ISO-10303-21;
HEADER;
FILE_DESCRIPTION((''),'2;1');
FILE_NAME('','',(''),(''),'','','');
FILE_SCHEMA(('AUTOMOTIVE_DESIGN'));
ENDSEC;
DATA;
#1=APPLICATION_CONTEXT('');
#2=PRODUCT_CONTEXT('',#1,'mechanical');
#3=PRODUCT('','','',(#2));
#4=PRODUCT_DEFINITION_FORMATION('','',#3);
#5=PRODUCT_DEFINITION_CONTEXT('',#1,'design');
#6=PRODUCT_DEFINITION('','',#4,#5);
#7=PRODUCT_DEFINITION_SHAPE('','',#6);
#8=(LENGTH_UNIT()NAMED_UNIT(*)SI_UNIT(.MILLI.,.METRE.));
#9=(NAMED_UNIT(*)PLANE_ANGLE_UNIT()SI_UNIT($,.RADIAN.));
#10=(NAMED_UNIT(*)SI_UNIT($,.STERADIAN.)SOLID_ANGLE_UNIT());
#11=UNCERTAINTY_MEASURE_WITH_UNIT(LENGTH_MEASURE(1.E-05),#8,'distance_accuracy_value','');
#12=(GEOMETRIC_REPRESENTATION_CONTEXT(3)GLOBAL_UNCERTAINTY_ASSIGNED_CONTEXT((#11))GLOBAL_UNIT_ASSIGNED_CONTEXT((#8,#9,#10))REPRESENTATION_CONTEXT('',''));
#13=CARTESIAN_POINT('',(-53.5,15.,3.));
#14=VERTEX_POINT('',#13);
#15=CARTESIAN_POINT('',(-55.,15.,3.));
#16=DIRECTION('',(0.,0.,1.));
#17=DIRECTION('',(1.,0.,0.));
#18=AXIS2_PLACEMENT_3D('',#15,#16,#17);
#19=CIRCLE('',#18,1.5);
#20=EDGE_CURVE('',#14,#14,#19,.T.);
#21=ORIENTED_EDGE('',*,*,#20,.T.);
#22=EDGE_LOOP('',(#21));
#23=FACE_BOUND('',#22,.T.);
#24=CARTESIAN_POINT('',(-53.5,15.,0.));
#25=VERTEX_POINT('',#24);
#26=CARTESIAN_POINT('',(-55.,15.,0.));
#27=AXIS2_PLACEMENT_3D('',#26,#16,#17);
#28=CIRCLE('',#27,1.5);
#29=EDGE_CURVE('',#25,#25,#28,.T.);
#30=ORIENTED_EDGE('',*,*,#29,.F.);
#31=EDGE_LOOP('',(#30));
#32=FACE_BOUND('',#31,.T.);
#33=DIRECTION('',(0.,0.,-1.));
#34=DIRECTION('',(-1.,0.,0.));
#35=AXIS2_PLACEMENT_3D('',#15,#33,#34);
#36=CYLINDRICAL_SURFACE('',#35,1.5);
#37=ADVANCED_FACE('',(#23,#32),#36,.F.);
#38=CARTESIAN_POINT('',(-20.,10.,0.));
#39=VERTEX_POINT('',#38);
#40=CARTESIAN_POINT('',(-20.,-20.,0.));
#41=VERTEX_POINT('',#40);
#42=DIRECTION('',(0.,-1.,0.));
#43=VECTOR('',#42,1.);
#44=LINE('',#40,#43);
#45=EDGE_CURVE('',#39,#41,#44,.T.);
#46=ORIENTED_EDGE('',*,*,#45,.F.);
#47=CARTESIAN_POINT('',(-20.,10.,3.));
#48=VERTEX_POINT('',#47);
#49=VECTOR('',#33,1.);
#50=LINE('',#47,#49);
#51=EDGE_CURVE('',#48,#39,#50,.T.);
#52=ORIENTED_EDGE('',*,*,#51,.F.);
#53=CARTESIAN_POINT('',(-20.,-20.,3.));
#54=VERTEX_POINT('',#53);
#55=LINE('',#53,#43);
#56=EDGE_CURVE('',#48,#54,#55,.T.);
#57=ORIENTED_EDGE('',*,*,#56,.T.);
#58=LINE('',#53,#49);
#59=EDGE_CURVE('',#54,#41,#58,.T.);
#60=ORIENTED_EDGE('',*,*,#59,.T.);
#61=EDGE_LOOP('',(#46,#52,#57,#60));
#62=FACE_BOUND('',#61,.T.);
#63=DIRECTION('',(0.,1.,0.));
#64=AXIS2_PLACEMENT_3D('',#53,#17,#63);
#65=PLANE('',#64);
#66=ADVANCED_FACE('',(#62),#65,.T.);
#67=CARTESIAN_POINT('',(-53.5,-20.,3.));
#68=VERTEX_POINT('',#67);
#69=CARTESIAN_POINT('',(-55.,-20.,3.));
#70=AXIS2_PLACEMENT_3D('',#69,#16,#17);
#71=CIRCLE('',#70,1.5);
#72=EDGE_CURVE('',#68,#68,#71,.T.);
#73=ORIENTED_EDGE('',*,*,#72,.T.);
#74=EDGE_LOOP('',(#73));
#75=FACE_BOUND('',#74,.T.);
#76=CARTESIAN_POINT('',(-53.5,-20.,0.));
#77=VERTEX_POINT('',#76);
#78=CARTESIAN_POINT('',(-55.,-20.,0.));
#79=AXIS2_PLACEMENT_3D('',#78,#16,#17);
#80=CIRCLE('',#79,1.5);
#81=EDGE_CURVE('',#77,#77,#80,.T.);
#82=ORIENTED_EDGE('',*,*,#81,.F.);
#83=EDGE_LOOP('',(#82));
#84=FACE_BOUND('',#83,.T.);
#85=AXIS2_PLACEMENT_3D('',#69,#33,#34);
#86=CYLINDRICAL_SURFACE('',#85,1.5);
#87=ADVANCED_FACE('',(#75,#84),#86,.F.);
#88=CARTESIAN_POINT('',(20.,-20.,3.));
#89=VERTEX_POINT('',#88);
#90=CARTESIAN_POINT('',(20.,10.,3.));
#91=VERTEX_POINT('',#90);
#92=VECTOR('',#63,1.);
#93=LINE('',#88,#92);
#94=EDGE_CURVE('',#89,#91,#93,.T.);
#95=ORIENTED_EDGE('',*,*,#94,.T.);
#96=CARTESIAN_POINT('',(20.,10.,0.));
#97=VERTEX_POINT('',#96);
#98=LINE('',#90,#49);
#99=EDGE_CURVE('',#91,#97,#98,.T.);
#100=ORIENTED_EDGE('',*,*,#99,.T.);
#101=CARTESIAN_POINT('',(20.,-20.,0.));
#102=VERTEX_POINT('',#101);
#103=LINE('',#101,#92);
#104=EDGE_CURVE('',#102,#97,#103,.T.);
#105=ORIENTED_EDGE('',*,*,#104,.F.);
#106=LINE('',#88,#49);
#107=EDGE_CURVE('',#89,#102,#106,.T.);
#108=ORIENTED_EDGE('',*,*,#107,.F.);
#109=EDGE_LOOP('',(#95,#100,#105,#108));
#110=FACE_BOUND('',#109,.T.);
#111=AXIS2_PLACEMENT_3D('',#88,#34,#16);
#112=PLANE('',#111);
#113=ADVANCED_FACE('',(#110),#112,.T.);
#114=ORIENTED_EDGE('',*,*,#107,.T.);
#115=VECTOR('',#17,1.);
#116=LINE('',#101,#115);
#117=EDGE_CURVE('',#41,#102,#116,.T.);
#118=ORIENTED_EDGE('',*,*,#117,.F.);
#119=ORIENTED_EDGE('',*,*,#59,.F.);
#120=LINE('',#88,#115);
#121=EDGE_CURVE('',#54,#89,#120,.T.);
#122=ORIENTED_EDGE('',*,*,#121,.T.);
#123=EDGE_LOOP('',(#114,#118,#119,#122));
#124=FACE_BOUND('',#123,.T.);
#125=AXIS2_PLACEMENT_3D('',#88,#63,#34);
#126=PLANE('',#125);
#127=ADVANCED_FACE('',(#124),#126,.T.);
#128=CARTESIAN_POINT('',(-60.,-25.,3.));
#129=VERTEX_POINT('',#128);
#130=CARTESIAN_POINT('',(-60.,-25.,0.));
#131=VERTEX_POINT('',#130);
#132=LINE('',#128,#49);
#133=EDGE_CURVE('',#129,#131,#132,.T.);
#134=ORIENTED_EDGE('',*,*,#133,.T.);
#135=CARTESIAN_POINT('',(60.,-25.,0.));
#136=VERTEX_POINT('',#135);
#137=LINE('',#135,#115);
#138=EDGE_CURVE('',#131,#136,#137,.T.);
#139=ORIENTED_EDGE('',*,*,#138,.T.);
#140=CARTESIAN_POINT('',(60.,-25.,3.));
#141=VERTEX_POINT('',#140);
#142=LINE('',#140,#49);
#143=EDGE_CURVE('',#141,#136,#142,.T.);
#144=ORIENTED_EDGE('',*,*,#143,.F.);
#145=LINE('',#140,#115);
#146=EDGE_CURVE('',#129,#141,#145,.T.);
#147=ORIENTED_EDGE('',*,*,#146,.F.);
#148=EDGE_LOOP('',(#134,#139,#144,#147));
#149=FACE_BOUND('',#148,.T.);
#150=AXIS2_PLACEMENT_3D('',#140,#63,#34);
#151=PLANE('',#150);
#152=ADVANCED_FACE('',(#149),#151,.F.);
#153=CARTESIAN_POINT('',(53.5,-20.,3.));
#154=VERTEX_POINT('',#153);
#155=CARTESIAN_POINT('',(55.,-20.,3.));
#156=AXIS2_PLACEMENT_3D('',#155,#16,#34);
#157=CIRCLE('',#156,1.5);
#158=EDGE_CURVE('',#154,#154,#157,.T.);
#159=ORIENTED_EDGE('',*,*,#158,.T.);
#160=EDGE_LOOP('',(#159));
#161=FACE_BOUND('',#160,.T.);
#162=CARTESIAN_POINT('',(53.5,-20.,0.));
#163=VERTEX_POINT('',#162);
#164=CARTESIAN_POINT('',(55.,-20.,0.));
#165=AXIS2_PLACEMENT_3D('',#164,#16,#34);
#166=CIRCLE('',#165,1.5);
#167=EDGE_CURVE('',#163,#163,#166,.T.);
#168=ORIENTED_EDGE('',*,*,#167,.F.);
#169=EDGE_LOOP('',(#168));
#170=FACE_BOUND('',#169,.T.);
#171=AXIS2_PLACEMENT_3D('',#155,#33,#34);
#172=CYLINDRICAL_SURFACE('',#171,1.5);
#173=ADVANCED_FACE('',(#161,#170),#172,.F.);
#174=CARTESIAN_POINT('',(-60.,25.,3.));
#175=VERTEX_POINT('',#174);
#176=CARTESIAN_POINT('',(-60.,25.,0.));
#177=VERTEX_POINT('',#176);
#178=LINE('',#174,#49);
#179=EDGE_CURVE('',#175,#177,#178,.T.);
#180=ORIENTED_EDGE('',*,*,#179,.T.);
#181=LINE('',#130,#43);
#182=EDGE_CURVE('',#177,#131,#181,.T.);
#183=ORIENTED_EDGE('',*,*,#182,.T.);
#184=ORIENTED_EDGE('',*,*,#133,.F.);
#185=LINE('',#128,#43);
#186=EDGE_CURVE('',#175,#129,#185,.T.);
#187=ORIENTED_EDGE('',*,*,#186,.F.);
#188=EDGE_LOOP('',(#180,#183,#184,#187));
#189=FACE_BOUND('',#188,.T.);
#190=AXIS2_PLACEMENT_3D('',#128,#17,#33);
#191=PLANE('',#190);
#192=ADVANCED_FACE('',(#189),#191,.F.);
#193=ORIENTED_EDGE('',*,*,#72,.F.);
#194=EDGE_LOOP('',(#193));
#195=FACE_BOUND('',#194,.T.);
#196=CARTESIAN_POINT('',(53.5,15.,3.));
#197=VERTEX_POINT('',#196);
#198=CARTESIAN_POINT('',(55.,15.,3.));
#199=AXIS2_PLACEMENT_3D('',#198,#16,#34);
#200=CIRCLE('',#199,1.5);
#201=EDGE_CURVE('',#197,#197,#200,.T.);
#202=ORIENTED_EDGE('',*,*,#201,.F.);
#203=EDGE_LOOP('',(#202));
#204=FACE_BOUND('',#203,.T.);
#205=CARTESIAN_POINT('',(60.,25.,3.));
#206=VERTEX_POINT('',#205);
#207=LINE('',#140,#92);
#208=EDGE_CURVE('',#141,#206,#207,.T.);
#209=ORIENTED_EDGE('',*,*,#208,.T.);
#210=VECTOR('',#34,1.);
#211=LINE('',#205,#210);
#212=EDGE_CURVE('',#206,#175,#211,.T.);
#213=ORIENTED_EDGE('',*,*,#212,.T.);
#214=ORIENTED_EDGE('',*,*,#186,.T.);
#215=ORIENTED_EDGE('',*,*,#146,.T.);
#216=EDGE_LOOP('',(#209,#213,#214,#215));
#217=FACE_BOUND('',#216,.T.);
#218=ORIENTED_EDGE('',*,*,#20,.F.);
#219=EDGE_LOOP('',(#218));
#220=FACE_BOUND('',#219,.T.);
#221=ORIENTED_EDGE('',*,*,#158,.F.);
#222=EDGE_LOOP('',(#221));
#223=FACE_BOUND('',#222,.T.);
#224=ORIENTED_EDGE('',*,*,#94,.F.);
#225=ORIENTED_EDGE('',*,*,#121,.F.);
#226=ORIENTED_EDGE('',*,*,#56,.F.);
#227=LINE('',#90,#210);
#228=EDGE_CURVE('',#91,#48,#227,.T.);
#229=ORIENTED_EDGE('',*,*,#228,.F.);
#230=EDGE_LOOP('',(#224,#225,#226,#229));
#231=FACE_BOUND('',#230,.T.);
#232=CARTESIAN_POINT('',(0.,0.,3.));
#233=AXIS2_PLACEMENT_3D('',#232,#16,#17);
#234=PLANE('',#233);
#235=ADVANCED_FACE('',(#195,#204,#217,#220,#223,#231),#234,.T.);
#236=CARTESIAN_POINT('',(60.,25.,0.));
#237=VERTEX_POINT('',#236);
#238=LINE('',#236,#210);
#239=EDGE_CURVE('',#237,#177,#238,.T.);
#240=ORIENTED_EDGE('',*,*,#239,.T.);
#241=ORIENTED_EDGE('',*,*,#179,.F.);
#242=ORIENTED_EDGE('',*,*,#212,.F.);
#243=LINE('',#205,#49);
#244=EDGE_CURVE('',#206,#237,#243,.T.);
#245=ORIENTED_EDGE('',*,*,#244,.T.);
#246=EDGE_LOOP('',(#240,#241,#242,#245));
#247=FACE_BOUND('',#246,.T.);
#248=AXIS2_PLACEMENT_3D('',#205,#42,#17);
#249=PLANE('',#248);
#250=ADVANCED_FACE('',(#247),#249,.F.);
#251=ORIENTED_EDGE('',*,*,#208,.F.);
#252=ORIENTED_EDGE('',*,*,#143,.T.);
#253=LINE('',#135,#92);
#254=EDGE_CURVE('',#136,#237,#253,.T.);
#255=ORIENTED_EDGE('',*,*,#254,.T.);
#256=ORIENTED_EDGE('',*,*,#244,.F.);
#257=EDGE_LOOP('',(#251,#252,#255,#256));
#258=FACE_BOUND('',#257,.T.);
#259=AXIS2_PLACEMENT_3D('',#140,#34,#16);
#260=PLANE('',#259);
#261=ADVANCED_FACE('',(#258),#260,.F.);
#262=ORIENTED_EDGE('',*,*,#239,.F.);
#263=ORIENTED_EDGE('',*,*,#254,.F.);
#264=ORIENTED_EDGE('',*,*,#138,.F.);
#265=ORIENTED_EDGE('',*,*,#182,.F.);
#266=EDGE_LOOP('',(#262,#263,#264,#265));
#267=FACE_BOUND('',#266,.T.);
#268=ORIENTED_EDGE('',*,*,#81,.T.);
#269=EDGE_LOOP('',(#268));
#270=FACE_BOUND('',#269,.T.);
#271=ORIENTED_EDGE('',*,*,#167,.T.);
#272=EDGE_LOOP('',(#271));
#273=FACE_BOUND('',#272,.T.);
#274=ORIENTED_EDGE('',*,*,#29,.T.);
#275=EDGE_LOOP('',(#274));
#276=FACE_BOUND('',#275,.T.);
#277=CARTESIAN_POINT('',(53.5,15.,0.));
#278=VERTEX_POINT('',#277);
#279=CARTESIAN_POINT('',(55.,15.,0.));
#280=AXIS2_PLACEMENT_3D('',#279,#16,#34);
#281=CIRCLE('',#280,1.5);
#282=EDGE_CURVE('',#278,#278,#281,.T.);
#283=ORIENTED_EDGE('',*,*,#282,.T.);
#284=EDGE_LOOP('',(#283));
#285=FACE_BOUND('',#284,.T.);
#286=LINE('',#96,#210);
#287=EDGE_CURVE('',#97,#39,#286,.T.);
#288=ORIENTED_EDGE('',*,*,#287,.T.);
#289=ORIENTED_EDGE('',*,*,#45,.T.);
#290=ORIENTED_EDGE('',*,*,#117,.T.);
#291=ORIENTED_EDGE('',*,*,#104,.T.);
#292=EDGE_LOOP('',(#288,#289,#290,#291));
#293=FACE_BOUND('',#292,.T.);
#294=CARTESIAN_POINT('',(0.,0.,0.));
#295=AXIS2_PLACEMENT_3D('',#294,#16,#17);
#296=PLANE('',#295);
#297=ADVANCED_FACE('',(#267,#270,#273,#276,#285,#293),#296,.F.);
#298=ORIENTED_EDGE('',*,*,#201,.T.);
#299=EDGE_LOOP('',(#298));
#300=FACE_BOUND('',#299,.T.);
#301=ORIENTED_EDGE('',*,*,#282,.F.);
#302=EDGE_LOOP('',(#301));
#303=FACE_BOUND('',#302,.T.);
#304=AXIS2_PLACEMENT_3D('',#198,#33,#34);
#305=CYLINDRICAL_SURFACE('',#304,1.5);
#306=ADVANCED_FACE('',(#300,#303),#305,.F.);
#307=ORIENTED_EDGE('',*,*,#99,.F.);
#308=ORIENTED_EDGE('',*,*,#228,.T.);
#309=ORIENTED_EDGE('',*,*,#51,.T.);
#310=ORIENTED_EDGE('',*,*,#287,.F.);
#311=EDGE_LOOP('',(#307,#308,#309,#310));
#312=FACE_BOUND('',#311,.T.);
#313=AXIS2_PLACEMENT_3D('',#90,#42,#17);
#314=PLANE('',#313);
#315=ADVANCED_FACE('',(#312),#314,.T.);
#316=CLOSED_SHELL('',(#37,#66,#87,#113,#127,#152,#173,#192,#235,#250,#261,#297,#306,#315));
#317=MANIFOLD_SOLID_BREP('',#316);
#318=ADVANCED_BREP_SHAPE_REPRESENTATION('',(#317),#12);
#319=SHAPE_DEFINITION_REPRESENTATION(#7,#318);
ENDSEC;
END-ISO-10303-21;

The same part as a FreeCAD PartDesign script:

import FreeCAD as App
import Part
import Sketcher
Q = App.Units.Quantity


def add_polygon(sketch, points):
    """Adds a closed chain of lines whose ends are joined by coincident constraints."""
    first, n = sketch.GeometryCount, len(points)
    for a, b in zip(points, points[1:] + points[:1]):
        sketch.addGeometry(Part.LineSegment(App.Vector(*a, 0), App.Vector(*b, 0)), False)
    for i in range(n):
        sketch.addConstraint(Sketcher.Constraint("Coincident", first + i, 2, first + (i + 1) % n, 1))

doc = App.newDocument("Part")
params = doc.addObject("Spreadsheet::Sheet", "Params")
for row, (alias, value) in enumerate([
    ("sketch1_diameter", "3 mm"),
    ("sketch1_width", "120 mm"),
    ("sketch1_width2", "40 mm"),
    ("sketch1_height", "50 mm"),
    ("sketch1_height2", "30 mm"),
    ("pad1_length", "3 mm"),
], start=1):
    params.set(f"A{row}", alias)
    params.set(f"B{row}", "=" + value)
    params.setAlias(f"B{row}", alias)

body = doc.addObject("PartDesign::Body", "Body")

# Sketch on XY plane
sketch1 = body.newObject("Sketcher::SketchObject", "Sketch")
sketch1.AttachmentSupport = (doc.getObject("XY_Plane"), [""])
sketch1.MapMode = "FlatFace"
add_polygon(sketch1, [(-60, 25), (-60, -25), (60, -25), (60, 25)])  # lines 0-3
sketch1.addGeometry(Part.Circle(App.Vector(-55, -20, 0), App.Vector(0, 0, 1), 1.5), False)  # 4
sketch1.addGeometry(Part.Circle(App.Vector(55, -20, 0), App.Vector(0, 0, 1), 1.5), False)  # 5
add_polygon(sketch1, [(20, -20), (-20, -20), (-20, 10), (20, 10)])  # lines 6-9
sketch1.addGeometry(Part.Circle(App.Vector(-55, 15, 0), App.Vector(0, 0, 1), 1.5), False)  # 10
sketch1.addGeometry(Part.Circle(App.Vector(55, 15, 0), App.Vector(0, 0, 1), 1.5), False)  # 11
sketch1.addConstraint([
    Sketcher.Constraint("Vertical", 0),
    Sketcher.Constraint("Horizontal", 1),
    Sketcher.Constraint("Vertical", 2),
    Sketcher.Constraint("Horizontal", 3),
    Sketcher.Constraint("Horizontal", 6),
    Sketcher.Constraint("Vertical", 7),
    Sketcher.Constraint("Horizontal", 8),
    Sketcher.Constraint("Vertical", 9),
    Sketcher.Constraint("Equal", 4, 5),
    Sketcher.Constraint("Equal", 5, 10),
    Sketcher.Constraint("Equal", 10, 11),
    Sketcher.Constraint("Symmetric", 0, 2, 2, 2, -1, 1),
    Sketcher.Constraint("Symmetric", 4, 3, 5, 3, -2),
    Sketcher.Constraint("Symmetric", 10, 3, 11, 3, -2),
    Sketcher.Constraint("Horizontal", 5, 3, 6, 2),
    Sketcher.Constraint("Vertical", 4, 3, 10, 3),
    Sketcher.Constraint("Diameter", 4, Q("3 mm")),
    Sketcher.Constraint("DistanceX", 1, 1, 1, 2, Q("120 mm")),
    Sketcher.Constraint("DistanceX", 6, 2, 6, 1, Q("40 mm")),
    Sketcher.Constraint("DistanceY", 0, 2, 0, 1, Q("50 mm")),
    Sketcher.Constraint("DistanceY", 7, 1, 7, 2, Q("30 mm")),
    Sketcher.Constraint("DistanceX", 4, 3, -1, 1, Q("55 mm")),
    Sketcher.Constraint("DistanceY", 4, 3, -1, 1, Q("20 mm")),
    Sketcher.Constraint("DistanceY", -1, 1, 10, 3, Q("15 mm")),
    Sketcher.Constraint("DistanceX", 6, 2, -1, 1, Q("20 mm")),
])
sketch1.setExpression("Constraints[24]", "Params.sketch1_diameter")
sketch1.setExpression("Constraints[25]", "Params.sketch1_width")
sketch1.setExpression("Constraints[26]", "Params.sketch1_width2")
sketch1.setExpression("Constraints[27]", "Params.sketch1_height")
sketch1.setExpression("Constraints[28]", "Params.sketch1_height2")
pad1 = body.newObject("PartDesign::Pad", "Pad")
pad1.Profile = sketch1
pad1.setExpression("Length", "Params.pad1_length")

doc.recompute()
